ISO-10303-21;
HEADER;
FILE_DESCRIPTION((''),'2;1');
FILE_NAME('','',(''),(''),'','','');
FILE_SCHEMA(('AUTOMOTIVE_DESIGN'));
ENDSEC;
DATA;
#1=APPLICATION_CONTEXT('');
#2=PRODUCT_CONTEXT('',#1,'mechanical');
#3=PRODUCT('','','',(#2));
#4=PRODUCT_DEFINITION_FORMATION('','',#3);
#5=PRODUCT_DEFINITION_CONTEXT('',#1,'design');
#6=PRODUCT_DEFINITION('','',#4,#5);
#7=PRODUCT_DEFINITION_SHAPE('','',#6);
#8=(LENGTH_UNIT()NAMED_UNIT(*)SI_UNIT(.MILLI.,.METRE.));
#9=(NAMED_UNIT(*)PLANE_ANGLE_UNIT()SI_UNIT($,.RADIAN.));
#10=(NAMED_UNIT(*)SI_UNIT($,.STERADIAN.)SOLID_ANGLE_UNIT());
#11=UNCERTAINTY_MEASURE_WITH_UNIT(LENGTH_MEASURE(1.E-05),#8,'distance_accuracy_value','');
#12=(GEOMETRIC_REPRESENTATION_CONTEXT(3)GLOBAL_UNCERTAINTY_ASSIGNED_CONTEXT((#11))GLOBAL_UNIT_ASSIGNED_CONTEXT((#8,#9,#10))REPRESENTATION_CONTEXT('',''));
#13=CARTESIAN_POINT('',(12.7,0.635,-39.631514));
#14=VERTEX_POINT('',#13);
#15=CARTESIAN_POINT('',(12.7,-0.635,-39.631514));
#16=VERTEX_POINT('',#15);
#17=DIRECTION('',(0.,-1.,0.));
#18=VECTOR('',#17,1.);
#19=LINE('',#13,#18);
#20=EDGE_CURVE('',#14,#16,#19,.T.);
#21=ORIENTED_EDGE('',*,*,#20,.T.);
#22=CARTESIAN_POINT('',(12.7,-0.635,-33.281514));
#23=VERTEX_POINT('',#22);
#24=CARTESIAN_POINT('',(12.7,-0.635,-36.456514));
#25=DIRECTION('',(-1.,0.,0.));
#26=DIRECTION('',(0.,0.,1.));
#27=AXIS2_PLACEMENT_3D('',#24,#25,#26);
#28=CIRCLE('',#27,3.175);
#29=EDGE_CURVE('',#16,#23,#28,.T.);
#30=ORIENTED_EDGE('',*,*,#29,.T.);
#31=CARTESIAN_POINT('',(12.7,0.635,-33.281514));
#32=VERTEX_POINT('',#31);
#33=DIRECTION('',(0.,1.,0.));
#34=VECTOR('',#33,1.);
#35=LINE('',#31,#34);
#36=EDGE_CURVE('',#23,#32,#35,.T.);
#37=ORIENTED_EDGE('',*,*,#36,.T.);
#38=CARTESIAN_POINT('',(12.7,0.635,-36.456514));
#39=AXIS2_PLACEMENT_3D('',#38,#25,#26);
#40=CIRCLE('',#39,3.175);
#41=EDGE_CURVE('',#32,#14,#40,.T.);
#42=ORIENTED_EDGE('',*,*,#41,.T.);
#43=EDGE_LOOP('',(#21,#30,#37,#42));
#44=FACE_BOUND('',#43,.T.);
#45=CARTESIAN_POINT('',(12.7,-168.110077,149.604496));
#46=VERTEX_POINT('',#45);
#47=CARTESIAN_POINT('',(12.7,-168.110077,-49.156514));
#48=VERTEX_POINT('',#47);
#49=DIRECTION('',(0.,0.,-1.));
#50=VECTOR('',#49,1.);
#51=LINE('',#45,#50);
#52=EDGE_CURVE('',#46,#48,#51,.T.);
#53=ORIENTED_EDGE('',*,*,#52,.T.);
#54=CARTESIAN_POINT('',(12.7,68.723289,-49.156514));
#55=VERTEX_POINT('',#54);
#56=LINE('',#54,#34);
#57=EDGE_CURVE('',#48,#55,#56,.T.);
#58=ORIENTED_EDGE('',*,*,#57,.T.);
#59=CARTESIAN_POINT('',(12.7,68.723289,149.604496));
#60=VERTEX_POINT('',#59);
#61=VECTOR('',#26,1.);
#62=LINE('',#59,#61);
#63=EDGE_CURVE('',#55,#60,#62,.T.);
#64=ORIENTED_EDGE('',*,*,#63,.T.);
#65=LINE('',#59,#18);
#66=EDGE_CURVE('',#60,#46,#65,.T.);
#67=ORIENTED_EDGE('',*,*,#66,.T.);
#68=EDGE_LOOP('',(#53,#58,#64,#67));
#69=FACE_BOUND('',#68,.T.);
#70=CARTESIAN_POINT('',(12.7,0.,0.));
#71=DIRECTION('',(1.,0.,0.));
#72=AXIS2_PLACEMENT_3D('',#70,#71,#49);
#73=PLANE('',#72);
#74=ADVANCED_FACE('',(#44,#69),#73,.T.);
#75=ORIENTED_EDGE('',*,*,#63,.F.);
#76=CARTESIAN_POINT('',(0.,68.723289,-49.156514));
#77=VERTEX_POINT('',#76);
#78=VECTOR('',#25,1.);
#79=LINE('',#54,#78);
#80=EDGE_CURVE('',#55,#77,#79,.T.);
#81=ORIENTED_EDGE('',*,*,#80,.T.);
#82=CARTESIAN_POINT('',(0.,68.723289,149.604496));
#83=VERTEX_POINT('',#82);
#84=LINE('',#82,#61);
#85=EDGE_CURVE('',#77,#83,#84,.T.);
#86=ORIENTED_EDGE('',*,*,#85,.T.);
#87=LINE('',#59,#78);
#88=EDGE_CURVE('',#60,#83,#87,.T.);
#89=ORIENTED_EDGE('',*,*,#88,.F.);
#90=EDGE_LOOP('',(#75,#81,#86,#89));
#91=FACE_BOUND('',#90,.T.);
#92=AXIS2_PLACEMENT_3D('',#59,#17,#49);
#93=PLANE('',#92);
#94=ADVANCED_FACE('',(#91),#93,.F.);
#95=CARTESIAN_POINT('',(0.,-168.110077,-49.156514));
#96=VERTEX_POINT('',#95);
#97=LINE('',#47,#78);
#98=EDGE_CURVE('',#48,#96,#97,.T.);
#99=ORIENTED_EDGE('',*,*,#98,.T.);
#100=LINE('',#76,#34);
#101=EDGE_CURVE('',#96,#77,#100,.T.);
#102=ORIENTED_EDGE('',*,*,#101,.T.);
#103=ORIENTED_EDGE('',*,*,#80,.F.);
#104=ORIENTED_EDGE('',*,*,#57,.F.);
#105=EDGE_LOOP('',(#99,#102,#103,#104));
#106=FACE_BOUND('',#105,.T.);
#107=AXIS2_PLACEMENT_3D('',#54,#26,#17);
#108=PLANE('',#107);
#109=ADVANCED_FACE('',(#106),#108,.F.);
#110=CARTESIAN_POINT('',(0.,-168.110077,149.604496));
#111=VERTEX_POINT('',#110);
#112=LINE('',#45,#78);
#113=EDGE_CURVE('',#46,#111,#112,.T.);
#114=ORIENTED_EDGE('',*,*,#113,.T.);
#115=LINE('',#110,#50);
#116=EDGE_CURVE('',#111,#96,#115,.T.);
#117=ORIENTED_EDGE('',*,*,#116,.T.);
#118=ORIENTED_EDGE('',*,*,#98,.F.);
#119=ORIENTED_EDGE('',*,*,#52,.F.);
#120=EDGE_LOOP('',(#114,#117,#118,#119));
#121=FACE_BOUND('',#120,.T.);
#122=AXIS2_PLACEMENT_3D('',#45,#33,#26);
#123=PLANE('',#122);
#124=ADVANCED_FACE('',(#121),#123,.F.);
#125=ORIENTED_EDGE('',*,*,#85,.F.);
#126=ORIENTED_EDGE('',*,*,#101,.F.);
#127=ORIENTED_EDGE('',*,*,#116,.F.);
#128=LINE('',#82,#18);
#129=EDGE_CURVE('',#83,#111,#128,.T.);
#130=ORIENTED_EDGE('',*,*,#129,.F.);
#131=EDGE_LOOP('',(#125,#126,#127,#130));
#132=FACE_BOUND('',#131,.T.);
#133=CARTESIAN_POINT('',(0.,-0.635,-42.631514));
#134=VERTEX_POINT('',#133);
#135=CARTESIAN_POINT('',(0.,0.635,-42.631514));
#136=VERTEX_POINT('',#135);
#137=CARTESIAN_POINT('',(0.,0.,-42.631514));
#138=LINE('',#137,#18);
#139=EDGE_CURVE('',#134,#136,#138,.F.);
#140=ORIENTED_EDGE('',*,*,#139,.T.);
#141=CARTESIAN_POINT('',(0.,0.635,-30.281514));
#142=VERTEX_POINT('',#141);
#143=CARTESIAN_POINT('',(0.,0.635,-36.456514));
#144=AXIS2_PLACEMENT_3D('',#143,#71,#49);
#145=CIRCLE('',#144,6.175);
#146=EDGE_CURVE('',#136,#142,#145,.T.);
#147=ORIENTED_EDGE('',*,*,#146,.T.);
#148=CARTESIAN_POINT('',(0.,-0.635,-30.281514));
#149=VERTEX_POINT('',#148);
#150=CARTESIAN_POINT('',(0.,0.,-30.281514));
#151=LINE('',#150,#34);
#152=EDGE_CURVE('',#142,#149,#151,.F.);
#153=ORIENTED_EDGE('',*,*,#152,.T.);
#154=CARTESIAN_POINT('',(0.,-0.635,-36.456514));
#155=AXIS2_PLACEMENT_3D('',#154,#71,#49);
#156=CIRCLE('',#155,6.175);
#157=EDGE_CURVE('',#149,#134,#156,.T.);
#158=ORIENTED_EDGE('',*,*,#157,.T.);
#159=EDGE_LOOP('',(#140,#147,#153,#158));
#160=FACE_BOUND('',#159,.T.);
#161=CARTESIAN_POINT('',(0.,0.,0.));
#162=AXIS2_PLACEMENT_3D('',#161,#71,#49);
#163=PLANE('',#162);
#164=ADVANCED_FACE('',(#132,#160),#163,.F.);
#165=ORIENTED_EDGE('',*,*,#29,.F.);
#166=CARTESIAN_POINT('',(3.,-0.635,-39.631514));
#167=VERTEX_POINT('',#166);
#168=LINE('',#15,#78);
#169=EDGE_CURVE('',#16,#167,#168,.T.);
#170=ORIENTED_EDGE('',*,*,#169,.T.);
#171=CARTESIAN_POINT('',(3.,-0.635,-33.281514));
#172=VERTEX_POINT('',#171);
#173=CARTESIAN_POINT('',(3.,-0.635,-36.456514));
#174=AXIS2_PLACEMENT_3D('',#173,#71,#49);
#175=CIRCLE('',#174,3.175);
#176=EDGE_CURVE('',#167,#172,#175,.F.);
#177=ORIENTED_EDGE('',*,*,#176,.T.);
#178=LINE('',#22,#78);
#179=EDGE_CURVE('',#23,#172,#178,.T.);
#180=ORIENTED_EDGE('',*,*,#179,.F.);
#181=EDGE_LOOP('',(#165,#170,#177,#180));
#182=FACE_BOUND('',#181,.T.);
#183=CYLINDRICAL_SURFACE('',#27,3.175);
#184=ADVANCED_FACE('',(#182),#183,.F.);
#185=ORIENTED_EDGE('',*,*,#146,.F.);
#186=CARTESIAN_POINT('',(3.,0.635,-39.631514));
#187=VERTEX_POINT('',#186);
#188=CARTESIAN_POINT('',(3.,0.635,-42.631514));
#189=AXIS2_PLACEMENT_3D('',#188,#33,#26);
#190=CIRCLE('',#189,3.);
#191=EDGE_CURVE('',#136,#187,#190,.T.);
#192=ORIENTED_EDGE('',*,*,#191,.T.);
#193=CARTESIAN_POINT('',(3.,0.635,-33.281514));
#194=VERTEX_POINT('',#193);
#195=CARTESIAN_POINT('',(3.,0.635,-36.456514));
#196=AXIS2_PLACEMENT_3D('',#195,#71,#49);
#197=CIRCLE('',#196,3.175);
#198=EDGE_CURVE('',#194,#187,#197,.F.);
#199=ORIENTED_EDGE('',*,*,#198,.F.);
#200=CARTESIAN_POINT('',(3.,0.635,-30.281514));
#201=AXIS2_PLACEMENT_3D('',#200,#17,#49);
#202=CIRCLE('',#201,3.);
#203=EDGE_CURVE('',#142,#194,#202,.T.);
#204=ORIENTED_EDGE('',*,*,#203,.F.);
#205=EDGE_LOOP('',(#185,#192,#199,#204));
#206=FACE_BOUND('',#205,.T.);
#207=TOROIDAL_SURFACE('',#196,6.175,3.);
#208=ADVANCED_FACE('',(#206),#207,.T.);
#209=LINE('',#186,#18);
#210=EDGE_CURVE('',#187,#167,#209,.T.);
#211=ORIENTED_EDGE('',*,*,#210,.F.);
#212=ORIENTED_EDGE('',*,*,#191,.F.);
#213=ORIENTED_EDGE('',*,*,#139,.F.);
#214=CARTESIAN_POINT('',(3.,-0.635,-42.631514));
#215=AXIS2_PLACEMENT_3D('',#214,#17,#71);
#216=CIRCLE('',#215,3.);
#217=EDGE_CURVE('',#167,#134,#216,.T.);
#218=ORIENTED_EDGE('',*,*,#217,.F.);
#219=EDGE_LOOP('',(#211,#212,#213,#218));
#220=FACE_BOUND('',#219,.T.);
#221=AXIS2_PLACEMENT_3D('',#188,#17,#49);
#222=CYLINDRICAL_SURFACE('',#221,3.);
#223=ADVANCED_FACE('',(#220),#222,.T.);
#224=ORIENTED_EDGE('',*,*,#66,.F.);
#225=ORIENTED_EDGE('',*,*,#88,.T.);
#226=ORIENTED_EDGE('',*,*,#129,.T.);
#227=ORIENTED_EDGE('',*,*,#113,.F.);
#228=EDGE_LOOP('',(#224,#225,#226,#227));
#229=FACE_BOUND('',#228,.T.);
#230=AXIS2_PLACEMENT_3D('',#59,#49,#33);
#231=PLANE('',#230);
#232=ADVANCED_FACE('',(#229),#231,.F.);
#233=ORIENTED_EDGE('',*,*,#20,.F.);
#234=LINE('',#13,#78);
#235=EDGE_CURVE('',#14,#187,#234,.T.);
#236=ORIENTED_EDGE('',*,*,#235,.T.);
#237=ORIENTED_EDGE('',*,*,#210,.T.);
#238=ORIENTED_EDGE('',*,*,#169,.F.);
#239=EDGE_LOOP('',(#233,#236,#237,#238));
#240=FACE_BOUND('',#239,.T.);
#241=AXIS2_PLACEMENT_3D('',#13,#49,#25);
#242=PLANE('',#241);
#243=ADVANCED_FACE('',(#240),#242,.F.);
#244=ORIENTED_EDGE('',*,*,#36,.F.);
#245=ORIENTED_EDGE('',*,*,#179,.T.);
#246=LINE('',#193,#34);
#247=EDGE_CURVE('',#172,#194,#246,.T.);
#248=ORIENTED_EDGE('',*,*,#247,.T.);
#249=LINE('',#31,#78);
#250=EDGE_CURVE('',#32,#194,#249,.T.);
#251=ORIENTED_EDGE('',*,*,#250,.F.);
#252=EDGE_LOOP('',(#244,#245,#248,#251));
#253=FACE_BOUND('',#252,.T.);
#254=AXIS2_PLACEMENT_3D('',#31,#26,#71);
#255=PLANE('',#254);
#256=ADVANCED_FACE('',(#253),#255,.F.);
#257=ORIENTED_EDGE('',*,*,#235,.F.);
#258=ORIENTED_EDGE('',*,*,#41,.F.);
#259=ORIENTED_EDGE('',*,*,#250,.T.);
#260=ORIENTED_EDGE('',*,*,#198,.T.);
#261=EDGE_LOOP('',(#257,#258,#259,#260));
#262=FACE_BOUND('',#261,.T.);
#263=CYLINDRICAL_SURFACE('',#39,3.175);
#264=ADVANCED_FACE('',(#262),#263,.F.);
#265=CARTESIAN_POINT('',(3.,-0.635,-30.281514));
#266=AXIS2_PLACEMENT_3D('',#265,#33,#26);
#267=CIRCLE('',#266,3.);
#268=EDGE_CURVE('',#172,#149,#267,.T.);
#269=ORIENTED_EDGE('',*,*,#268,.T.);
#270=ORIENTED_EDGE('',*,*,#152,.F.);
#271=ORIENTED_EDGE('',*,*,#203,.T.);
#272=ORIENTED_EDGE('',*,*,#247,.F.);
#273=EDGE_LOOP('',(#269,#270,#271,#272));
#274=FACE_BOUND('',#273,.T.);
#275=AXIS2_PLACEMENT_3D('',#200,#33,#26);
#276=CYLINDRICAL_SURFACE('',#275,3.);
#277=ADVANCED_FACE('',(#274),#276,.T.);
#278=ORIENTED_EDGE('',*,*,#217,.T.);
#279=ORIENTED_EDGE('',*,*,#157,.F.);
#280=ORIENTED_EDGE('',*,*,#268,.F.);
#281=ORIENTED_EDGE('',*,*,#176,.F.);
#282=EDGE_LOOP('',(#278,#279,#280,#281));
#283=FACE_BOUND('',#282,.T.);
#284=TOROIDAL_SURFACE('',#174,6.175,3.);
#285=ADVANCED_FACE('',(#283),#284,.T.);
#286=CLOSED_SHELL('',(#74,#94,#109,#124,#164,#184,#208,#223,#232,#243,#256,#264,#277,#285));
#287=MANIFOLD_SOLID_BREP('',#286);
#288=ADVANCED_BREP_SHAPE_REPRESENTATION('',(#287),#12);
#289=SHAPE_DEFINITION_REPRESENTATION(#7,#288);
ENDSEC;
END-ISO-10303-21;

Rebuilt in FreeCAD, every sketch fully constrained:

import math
import FreeCAD as App
import Part
import Sketcher
Q = App.Units.Quantity


def edges_at(feature, points):
    """Names of the edges that pass closest to the given points."""
    edges = feature.Shape.Edges
    near = lambda p: min(range(len(edges)), key=lambda i: edges[i].distToShape(Part.Vertex(*p))[0])
    return sorted({f"Edge{near(p) + 1}" for p in points})

doc = App.newDocument("Part")
body = doc.addObject("PartDesign::Body", "Body")

# Sketch on YZ plane
sketch1 = doc.addObject("Sketcher::SketchObject", "Sketch")
body.addObject(sketch1)
sketch1.AttachmentSupport = (doc.YZ_Plane, [""])
sketch1.MapMode = "FlatFace"
sketch1.addGeometry(Part.LineSegment(App.Vector(68.723289, 149.604496, 0), App.Vector(-168.110077, 149.604496, 0)), False)
sketch1.addGeometry(Part.LineSegment(App.Vector(-168.110077, 149.604496, 0), App.Vector(-168.110077, -49.156514, 0)), False)
sketch1.addGeometry(Part.LineSegment(App.Vector(-168.110077, -49.156514, 0), App.Vector(68.723289, -49.156514, 0)), False)
sketch1.addGeometry(Part.LineSegment(App.Vector(68.723289, -49.156514, 0), App.Vector(68.723289, 149.604496, 0)), False)
sketch1.addConstraint(Sketcher.Constraint("Coincident", 0, 2, 1, 1))
sketch1.addConstraint(Sketcher.Constraint("Coincident", 1, 2, 2, 1))
sketch1.addConstraint(Sketcher.Constraint("Coincident", 2, 2, 3, 1))
sketch1.addConstraint(Sketcher.Constraint("Coincident", 3, 2, 0, 1))
sketch1.addConstraint(Sketcher.Constraint("Horizontal", 0))
sketch1.addConstraint(Sketcher.Constraint("Vertical", 1))
sketch1.addConstraint(Sketcher.Constraint("Horizontal", 2))
sketch1.addConstraint(Sketcher.Constraint("Vertical", 3))
sketch1.addConstraint(Sketcher.Constraint("DistanceY", 1, 2, 1, 1, Q("198.761009 mm")))
sketch1.addConstraint(Sketcher.Constraint("DistanceX", 0, 2, 0, 1, Q("236.833366 mm")))
sketch1.addConstraint(Sketcher.Constraint("DistanceX", -1, 1, 2, 2, Q("68.723289 mm")))
sketch1.addConstraint(Sketcher.Constraint("DistanceY", -1, 1, 0, 2, Q("149.604496 mm")))
pad1 = doc.addObject("PartDesign::Pad", "Pad")
body.addObject(pad1)
pad1.Profile = sketch1
pad1.Length = Q("0.5 in")

# Sketch on YZ plane
sketch2 = doc.addObject("Sketcher::SketchObject", "Sketch001")
body.addObject(sketch2)
sketch2.AttachmentSupport = (doc.YZ_Plane, [""])
sketch2.MapMode = "FlatFace"
sketch2.addGeometry(Part.LineSegment(App.Vector(-0.635, -33.281514, 0), App.Vector(0.635, -33.281514, 0)), False)
sketch2.addGeometry(Part.ArcOfCircle(Part.Circle(App.Vector(0.635, -36.456514, 0), App.Vector(0, 0, 1), 3.175), math.radians(-90), math.radians(90)), False)
sketch2.addGeometry(Part.LineSegment(App.Vector(0.635, -39.631514, 0), App.Vector(-0.635, -39.631514, 0)), False)
sketch2.addGeometry(Part.ArcOfCircle(Part.Circle(App.Vector(-0.635, -36.456514, 0), App.Vector(0, 0, 1), 3.175), math.radians(90), math.radians(270)), False)
sketch2.addConstraint(Sketcher.Constraint("Tangent", 0, 2, 1, 2))
sketch2.addConstraint(Sketcher.Constraint("Tangent", 1, 1, 2, 1))
sketch2.addConstraint(Sketcher.Constraint("Tangent", 2, 2, 3, 2))
sketch2.addConstraint(Sketcher.Constraint("Tangent", 3, 1, 0, 1))
sketch2.addConstraint(Sketcher.Constraint("Horizontal", 0))
sketch2.addConstraint(Sketcher.Constraint("Horizontal", 2))
sketch2.addConstraint(Sketcher.Constraint("Radius", 1, Q("0.125 in")))
sketch2.addConstraint(Sketcher.Constraint("DistanceX", 0, 1, 0, 2, Q("0.05 in")))
sketch2.addConstraint(Sketcher.Constraint("DistanceX", -1, 1, 1, 3, Q("0.025 in")))
sketch2.addConstraint(Sketcher.Constraint("DistanceY", 1, 3, -1, 1, Q("36.456514 mm")))
pocket1 = doc.addObject("PartDesign::Pocket", "Pocket")
body.addObject(pocket1)
pocket1.Profile = sketch2
pocket1.Length = Q("0.5 in")
pocket1.Reversed = True
doc.recompute()

fillet = doc.addObject("PartDesign::Fillet", "Fillet")
body.addObject(fillet)
fillet.Base = (pocket1, edges_at(pocket1, [
    (0, 3.81, -36.457),
    (0, 0, -39.632),
    (0, -3.81, -36.457),
    (0, 0, -33.282),
]))
fillet.Radius = 3

doc.recompute()
